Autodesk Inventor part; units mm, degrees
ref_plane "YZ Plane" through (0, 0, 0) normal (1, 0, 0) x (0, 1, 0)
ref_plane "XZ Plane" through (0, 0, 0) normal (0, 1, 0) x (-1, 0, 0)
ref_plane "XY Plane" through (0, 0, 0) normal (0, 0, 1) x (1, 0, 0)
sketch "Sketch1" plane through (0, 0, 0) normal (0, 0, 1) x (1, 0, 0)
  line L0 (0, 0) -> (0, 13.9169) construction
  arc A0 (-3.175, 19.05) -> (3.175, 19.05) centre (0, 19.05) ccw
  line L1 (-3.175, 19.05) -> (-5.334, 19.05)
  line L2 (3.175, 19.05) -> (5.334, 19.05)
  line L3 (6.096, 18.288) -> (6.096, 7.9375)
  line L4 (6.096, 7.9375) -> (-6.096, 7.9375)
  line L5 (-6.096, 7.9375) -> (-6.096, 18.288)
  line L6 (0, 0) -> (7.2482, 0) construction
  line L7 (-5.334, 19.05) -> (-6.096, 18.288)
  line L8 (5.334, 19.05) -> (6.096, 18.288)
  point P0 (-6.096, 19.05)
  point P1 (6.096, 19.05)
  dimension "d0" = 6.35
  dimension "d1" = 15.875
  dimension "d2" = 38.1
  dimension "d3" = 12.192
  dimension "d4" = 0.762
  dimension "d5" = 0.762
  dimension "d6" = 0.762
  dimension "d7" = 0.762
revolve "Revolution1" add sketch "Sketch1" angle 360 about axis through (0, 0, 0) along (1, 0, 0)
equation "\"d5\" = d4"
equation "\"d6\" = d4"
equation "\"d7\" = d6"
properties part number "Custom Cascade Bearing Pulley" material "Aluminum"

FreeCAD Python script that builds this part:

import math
import FreeCAD as App
import Part
import Sketcher
from FreeCAD import Vector
Q = App.Units.Quantity

doc = App.newDocument("Part")
params = doc.addObject("Spreadsheet::Sheet", "Params")
for row, (alias, value) in enumerate([
    ("sketch1_radius", "0.125 in"),
    ("sketch1_width", "0.48 in"),
    ("revolution_angle", "360 deg"),
], start=1):
    params.set(f"A{row}", alias)
    params.set(f"B{row}", "=" + value)
    params.setAlias(f"B{row}", alias)

body = doc.addObject("PartDesign::Body", "Body")

# Sketch on XY plane
sketch1 = body.newObject("Sketcher::SketchObject", "Sketch")
sketch1.AttachmentSupport = (doc.getObject("XY_Plane"), [""])
sketch1.MapMode = "FlatFace"
sketch1.addGeometry(Part.ArcOfCircle(Part.Circle(Vector(0, 19.05, 0), Vector(0, 0, 1), 3.175), math.radians(180), math.radians(360)), False)
sketch1.addGeometry(Part.LineSegment(Vector(-3.175, 19.05, 0), Vector(-5.334, 19.05, 0)), False)
sketch1.addGeometry(Part.LineSegment(Vector(-5.334, 19.05, 0), Vector(-6.096, 18.288, 0)), False)
sketch1.addGeometry(Part.LineSegment(Vector(-6.096, 18.288, 0), Vector(-6.096, 7.9375, 0)), False)
sketch1.addGeometry(Part.LineSegment(Vector(-6.096, 7.9375, 0), Vector(6.096, 7.9375, 0)), False)
sketch1.addGeometry(Part.LineSegment(Vector(6.096, 7.9375, 0), Vector(6.096, 18.288, 0)), False)
sketch1.addGeometry(Part.LineSegment(Vector(6.096, 18.288, 0), Vector(5.334, 19.05, 0)), False)
sketch1.addGeometry(Part.LineSegment(Vector(5.334, 19.05, 0), Vector(3.175, 19.05, 0)), False)
sketch1.addConstraint(Sketcher.Constraint("Coincident", 0, 1, 1, 1))
sketch1.addConstraint(Sketcher.Constraint("Coincident", 1, 2, 2, 1))
sketch1.addConstraint(Sketcher.Constraint("Coincident", 2, 2, 3, 1))
sketch1.addConstraint(Sketcher.Constraint("Coincident", 3, 2, 4, 1))
sketch1.addConstraint(Sketcher.Constraint("Coincident", 4, 2, 5, 1))
sketch1.addConstraint(Sketcher.Constraint("Coincident", 5, 2, 6, 1))
sketch1.addConstraint(Sketcher.Constraint("Coincident", 6, 2, 7, 1))
sketch1.addConstraint(Sketcher.Constraint("Coincident", 7, 2, 0, 2))
sketch1.addConstraint(Sketcher.Constraint("Horizontal", 1))
sketch1.addConstraint(Sketcher.Constraint("Vertical", 3))
sketch1.addConstraint(Sketcher.Constraint("Horizontal", 4))
sketch1.addConstraint(Sketcher.Constraint("Vertical", 5))
sketch1.addConstraint(Sketcher.Constraint("Horizontal", 7))
sketch1.addConstraint(Sketcher.Constraint("Symmetric", 2, 2, 5, 2, -2))
sketch1.addConstraint(Sketcher.Constraint("Symmetric", 1, 2, 6, 2, -2))
sketch1.addConstraint(Sketcher.Constraint("PointOnObject", 0, 3, -2))
sketch1.addConstraint(Sketcher.Constraint("Perpendicular", 2, 6))
sketch1.addConstraint(Sketcher.Constraint("Radius", 0, Q("0.125 in")))
sketch1.addConstraint(Sketcher.Constraint("DistanceX", 4, 1, 4, 2, Q("0.48 in")))
sketch1.addConstraint(Sketcher.Constraint("DistanceX", 2, 2, 1, 2, Q("0.03 in")))
sketch1.addConstraint(Sketcher.Constraint("DistanceY", 2, 2, 0, 3, Q("0.03 in")))
sketch1.addConstraint(Sketcher.Constraint("DistanceY", -1, 1, 0, 3, Q("0.75 in")))
sketch1.addConstraint(Sketcher.Constraint("DistanceY", 3, 2, 3, 1, Q("0.4075 in")))
sketch1.setExpression("Constraints[17]", "Params.sketch1_radius")
sketch1.setExpression("Constraints[18]", "Params.sketch1_width")
revolution = body.newObject("PartDesign::Revolution", "Revolution")
revolution.Profile = sketch1
revolution.ReferenceAxis = (sketch1, ["H_Axis"])
revolution.setExpression("Angle", "Params.revolution_angle")

doc.recompute()
